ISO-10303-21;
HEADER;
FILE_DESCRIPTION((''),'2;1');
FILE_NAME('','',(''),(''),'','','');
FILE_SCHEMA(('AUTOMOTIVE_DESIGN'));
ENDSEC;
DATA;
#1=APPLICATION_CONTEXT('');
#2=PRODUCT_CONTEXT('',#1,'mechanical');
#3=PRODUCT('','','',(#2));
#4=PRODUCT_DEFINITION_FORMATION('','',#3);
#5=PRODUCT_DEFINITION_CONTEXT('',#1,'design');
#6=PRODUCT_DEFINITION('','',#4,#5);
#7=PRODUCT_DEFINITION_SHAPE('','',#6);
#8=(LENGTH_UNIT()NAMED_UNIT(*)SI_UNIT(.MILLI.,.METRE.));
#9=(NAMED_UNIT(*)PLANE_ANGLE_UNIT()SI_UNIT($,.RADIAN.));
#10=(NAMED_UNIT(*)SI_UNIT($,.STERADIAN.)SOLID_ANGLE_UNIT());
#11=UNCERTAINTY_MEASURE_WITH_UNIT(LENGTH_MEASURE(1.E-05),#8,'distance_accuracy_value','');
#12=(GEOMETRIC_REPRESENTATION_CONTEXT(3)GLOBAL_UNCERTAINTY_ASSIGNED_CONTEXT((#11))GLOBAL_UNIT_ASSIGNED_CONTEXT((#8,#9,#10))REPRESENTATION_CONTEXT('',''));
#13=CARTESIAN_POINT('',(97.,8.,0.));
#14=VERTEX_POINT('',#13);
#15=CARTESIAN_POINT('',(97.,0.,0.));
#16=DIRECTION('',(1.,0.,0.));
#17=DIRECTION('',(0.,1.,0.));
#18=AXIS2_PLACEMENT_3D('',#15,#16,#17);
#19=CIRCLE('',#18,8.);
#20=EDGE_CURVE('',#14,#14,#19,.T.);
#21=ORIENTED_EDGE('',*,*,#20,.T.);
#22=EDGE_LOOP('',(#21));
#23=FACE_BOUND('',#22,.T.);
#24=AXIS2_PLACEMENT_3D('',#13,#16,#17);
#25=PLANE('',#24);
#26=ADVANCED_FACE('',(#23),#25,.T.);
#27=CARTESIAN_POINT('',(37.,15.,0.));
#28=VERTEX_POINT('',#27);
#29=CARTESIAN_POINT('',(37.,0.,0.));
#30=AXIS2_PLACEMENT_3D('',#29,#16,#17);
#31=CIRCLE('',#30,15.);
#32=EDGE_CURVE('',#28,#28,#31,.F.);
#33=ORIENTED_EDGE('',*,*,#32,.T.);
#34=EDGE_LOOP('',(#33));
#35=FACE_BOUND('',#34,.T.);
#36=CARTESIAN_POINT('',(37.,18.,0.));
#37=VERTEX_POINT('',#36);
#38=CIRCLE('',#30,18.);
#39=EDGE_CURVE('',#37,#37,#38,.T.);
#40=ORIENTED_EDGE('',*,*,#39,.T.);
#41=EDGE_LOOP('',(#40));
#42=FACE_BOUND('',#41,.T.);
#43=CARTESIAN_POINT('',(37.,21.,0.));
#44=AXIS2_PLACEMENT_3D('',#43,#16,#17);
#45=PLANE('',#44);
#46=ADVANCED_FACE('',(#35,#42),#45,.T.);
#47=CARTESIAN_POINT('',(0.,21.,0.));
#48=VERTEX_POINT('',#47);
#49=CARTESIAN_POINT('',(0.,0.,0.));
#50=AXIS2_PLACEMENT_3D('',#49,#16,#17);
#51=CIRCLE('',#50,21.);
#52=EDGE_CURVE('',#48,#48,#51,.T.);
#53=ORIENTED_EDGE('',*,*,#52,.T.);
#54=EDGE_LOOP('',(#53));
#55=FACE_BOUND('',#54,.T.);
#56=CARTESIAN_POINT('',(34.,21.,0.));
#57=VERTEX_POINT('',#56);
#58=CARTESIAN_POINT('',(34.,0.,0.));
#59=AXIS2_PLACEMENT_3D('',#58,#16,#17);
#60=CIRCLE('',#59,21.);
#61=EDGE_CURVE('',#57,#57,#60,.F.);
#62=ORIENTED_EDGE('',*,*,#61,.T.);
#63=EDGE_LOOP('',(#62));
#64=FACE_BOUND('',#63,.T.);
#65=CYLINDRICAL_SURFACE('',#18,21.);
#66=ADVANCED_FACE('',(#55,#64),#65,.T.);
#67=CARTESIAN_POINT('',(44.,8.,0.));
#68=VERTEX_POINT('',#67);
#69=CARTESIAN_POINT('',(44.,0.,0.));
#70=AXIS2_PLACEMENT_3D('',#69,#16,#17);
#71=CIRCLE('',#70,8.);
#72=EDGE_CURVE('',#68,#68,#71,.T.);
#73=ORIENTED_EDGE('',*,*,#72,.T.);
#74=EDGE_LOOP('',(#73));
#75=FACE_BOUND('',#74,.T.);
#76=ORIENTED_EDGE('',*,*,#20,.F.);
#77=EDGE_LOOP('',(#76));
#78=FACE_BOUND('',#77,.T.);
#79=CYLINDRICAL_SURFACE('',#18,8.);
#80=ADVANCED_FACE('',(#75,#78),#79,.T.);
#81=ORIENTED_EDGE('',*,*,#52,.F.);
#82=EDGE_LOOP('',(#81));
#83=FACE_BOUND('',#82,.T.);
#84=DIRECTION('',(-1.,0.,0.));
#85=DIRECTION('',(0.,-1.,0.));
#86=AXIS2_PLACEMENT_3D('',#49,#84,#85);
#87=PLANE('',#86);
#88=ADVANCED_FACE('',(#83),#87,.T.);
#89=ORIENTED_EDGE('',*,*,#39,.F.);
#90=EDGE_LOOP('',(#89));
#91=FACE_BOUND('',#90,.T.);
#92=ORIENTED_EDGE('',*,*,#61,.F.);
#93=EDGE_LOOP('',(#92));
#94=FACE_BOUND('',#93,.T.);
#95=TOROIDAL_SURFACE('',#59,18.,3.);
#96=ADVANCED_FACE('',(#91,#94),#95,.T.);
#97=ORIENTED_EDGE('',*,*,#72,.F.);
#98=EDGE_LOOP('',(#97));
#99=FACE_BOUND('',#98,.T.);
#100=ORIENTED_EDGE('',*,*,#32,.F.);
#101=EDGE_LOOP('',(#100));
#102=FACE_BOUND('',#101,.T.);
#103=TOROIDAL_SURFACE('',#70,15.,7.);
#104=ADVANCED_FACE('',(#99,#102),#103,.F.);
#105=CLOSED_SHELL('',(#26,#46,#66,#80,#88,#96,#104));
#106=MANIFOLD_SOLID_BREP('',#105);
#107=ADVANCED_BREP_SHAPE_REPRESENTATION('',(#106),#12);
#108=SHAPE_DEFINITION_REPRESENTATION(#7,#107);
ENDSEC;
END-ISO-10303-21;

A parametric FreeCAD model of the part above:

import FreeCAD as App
import Part
import Sketcher

V = App.Vector
Q = App.Units.Quantity


def edges_at(feature, points):
    """Names of the edges that pass closest to the given points."""
    edges = feature.Shape.Edges
    near = lambda p: min(range(len(edges)), key=lambda i: edges[i].distToShape(Part.Vertex(*p))[0])
    return sorted({f"Edge{near(p) + 1}" for p in points})

doc = App.newDocument("Part")
body = doc.addObject("PartDesign::Body", "Body")

# Sketch on XY plane
sketch1 = doc.addObject("Sketcher::SketchObject", "Sketch")
body.addObject(sketch1)
sketch1.AttachmentSupport = (doc.XY_Plane, [""])
sketch1.MapMode = "FlatFace"
sketch1.addGeometry([
    Part.LineSegment(V(0, 21, 0), V(0, 0, 0)),  # 0
    Part.LineSegment(V(0, 0, 0), V(97, 0, 0)),  # 1
    Part.LineSegment(V(97, 0, 0), V(97, 8, 0)),  # 2
    Part.LineSegment(V(97, 8, 0), V(37, 8, 0)),  # 3
    Part.LineSegment(V(37, 8, 0), V(37, 21, 0)),  # 4
    Part.LineSegment(V(37, 21, 0), V(0, 21, 0)),  # 5
], False)
sketch1.addConstraint([
    Sketcher.Constraint("Coincident", 0, 2, 1, 1),
    Sketcher.Constraint("Coincident", 1, 2, 2, 1),
    Sketcher.Constraint("Coincident", 2, 2, 3, 1),
    Sketcher.Constraint("Coincident", 3, 2, 4, 1),
    Sketcher.Constraint("Coincident", 4, 2, 5, 1),
    Sketcher.Constraint("Coincident", 5, 2, 0, 1),
    Sketcher.Constraint("Vertical", 0),
    Sketcher.Constraint("Horizontal", 1),
    Sketcher.Constraint("Vertical", 2),
    Sketcher.Constraint("Horizontal", 3),
    Sketcher.Constraint("Vertical", 4),
    Sketcher.Constraint("Horizontal", 5),
    Sketcher.Constraint("Coincident", 0, 2, -1, 1),
    Sketcher.Constraint("DistanceX", 1, 1, 1, 2, Q("97 mm")),
    Sketcher.Constraint("DistanceX", 3, 2, 3, 1, Q("60 mm")),
    Sketcher.Constraint("DistanceY", 0, 2, 0, 1, Q("21 mm")),
    Sketcher.Constraint("DistanceY", 2, 1, 2, 2, Q("8 mm")),
])
revolution = doc.addObject("PartDesign::Revolution", "Revolution")
body.addObject(revolution)
revolution.Profile = sketch1
revolution.ReferenceAxis = (sketch1, ["H_Axis"])
revolution.Angle = 360
doc.recompute()

fillet = doc.addObject("PartDesign::Fillet", "Fillet")
body.addObject(fillet)
fillet.Base = (revolution, edges_at(revolution, [(37, -21, 0)]))
fillet.Radius = 3
doc.recompute()

fillet2 = doc.addObject("PartDesign::Fillet", "Fillet001")
body.addObject(fillet2)
fillet2.Base = (fillet, edges_at(fillet, [(37, -8, 0)]))
fillet2.Radius = 7

doc.recompute()
